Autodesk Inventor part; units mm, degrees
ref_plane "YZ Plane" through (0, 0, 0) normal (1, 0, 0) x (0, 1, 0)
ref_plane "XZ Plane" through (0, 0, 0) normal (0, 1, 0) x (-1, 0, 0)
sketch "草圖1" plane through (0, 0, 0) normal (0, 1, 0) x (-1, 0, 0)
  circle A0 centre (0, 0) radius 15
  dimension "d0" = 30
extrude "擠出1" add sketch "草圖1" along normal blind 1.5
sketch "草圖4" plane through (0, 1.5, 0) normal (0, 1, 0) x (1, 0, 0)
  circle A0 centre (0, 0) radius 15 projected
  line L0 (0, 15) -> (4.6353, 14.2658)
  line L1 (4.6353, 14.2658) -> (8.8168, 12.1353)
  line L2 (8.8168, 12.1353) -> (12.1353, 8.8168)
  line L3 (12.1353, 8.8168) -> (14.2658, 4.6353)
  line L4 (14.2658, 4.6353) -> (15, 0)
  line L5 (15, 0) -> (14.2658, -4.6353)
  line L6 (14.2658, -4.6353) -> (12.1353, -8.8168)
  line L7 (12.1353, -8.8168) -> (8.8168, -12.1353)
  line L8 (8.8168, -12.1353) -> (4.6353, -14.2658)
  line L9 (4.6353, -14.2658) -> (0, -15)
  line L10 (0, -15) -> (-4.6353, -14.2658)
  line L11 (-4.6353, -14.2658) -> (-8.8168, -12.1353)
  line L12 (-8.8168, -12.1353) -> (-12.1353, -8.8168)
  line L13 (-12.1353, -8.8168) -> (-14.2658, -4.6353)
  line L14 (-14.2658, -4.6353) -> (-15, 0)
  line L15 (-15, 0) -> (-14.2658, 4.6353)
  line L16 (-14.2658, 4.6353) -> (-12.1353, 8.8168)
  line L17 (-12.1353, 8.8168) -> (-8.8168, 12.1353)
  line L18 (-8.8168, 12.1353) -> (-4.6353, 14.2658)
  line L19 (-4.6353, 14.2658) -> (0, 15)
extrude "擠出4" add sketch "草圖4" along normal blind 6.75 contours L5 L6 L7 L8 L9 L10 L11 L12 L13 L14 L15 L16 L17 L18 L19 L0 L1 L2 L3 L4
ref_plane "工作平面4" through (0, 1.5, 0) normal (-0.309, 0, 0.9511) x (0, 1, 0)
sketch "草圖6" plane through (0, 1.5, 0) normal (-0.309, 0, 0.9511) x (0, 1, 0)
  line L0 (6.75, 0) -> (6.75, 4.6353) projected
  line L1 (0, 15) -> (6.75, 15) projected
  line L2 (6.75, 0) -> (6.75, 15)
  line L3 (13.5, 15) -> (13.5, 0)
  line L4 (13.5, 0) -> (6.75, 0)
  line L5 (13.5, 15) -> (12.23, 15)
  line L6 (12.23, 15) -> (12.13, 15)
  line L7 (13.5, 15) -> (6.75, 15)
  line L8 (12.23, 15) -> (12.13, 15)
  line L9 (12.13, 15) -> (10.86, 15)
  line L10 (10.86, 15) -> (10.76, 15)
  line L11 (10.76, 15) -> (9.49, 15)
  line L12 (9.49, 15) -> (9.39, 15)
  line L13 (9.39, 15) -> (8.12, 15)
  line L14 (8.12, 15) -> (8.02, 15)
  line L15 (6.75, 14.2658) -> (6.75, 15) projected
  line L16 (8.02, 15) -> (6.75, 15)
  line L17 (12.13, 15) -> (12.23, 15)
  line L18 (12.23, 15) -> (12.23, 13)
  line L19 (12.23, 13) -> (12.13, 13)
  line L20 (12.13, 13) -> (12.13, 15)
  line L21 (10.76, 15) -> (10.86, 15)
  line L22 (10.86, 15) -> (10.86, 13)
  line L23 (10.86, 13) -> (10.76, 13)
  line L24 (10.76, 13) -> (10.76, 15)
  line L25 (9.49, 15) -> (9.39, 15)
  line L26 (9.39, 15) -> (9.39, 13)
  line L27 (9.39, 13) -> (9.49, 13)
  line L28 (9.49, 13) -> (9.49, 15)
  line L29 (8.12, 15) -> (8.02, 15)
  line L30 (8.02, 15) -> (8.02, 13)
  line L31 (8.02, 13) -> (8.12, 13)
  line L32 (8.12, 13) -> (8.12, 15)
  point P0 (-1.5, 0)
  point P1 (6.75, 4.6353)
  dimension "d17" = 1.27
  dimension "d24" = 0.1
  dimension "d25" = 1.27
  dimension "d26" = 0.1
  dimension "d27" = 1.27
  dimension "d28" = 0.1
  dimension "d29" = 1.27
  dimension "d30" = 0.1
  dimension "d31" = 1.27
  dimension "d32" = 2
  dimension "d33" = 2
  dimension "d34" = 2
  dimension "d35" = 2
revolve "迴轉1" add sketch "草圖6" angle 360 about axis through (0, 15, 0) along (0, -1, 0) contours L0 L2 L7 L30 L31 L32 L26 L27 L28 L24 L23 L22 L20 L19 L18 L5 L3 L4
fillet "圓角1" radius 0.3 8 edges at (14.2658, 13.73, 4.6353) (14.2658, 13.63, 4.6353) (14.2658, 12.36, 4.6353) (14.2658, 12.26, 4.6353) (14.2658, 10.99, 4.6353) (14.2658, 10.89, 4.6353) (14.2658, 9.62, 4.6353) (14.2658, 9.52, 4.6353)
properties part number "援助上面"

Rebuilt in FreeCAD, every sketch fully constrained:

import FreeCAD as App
import Part
import Sketcher

V = App.Vector
Q = App.Units.Quantity


def edges_at(feature, points):
    """Names of the edges that pass closest to the given points."""
    edges = feature.Shape.Edges
    near = lambda p: min(range(len(edges)), key=lambda i: edges[i].distToShape(Part.Vertex(*p))[0])
    return sorted({f"Edge{near(p) + 1}" for p in points})


def add_polygon(sketch, points):
    """Adds a closed chain of lines whose ends are joined by coincident constraints."""
    first, n = sketch.GeometryCount, len(points)
    for a, b in zip(points, points[1:] + points[:1]):
        sketch.addGeometry(Part.LineSegment(App.Vector(*a, 0), App.Vector(*b, 0)), False)
    for i in range(n):
        sketch.addConstraint(Sketcher.Constraint("Coincident", first + i, 2, first + (i + 1) % n, 1))

doc = App.newDocument("Part")
body = doc.addObject("PartDesign::Body", "Body")

# Sketch on XZ plane
sketch1 = body.newObject("Sketcher::SketchObject", "Sketch")
sketch1.AttachmentSupport = (doc.getObject("XZ_Plane"), [""])
sketch1.MapMode = "FlatFace"
sketch1.addGeometry(Part.Circle(V(0, 0, 0), V(0, 0, 1), 15), False)
sketch1.addConstraint([
    Sketcher.Constraint("Coincident", 0, 3, -1, 1),
    Sketcher.Constraint("Diameter", 0, Q("30 mm")),
])
pad1 = body.newObject("PartDesign::Pad", "Pad")
pad1.Profile = sketch1
pad1.Length = 1.5
pad1.Reversed = True

# Sketch on XZ plane
sketch2 = body.newObject("Sketcher::SketchObject", "Sketch001")
sketch2.AttachmentSupport = (doc.getObject("XZ_Plane"), [""])
sketch2.MapMode = "FlatFace"
sketch2.AttachmentOffset = App.Placement(V(0, 0, -1.5), App.Rotation())
add_polygon(sketch2, [(14.3, 4.6), (15, 0), (14.3, -4.6), (12.1, -8.8), (8.8, -12.1), (4.6, -14.3), (0, -15), (-4.6, -14.3), (-8.8, -12.1), (-12.1, -8.8), (-14.3, -4.6), (-15, 0), (-14.3, 4.6), (-12.1, 8.8), (-8.8, 12.1), (-4.6, 14.3), (0, 15), (4.6, 14.3), (8.8, 12.1), (12.1, 8.8)])  # lines 0-19
sketch2.addConstraint([
    Sketcher.Constraint("Symmetric", 0, 2, 10, 2, -1, 1),
    Sketcher.Constraint("Symmetric", 1, 2, 11, 2, -1, 1),
    Sketcher.Constraint("Symmetric", 2, 2, 12, 2, -1, 1),
    Sketcher.Constraint("Symmetric", 3, 2, 13, 2, -1, 1),
    Sketcher.Constraint("Symmetric", 4, 2, 14, 2, -1, 1),
    Sketcher.Constraint("Symmetric", 5, 2, 15, 2, -1, 1),
    Sketcher.Constraint("Symmetric", 6, 2, 16, 2, -1, 1),
    Sketcher.Constraint("Symmetric", 7, 2, 17, 2, -1, 1),
    Sketcher.Constraint("Symmetric", 8, 2, 18, 2, -1, 1),
    Sketcher.Constraint("Symmetric", 9, 2, 19, 2, -1, 1),
    Sketcher.Constraint("Symmetric", 4, 2, 6, 2, -2),
    Sketcher.Constraint("Symmetric", 3, 2, 7, 2, -2),
    Sketcher.Constraint("Symmetric", 2, 2, 8, 2, -2),
    Sketcher.Constraint("Symmetric", 1, 2, 9, 2, -2),
    Sketcher.Constraint("PointOnObject", 0, 2, -1),
    Sketcher.Constraint("PointOnObject", 5, 2, -2),
    Sketcher.Constraint("Perpendicular", 0, 5),
    Sketcher.Constraint("Perpendicular", 2, 7),
    Sketcher.Constraint("Perpendicular", 3, 8),
    Sketcher.Constraint("Equal", 1, 2),
    Sketcher.Constraint("Equal", 2, 3),
    Sketcher.Constraint("Equal", 3, 4),
    Sketcher.Constraint("Equal", 4, 5),
    Sketcher.Constraint("Angle", 0, Q("-80.9995 deg")),
    Sketcher.Constraint("Angle", 2, Q("-116.9991 deg")),
    Sketcher.Constraint("DistanceX", -1, 1, 0, 2, Q("15 mm")),
])
pad2 = body.newObject("PartDesign::Pad", "Pad001")
pad2.Profile = sketch2
pad2.Length = 6.75
pad2.Reversed = True

# Sketch on an angled plane
sketch3 = body.newObject("Sketcher::SketchObject", "Sketch002")
sketch3.Placement = App.Placement(V(0, 1.5, 0), App.Rotation(V(0, 1, 0), V(-0.951056516, 0, -0.309016994), V(-0.309016994, 0, 0.951056516), "ZXY"))
add_polygon(sketch3, [(6.75, 15), (6.75, 0), (13.5, 0), (13.5, 15), (12.23, 15), (12.23, 13), (12.13, 13), (12.13, 15), (10.86, 15), (10.86, 13), (10.76, 13), (10.76, 15), (9.49, 15), (9.49, 13), (9.39, 13), (9.39, 15), (8.12, 15), (8.12, 13), (8.02, 13), (8.02, 15)])  # lines 0-19
sketch3.addConstraint([
    Sketcher.Constraint("Vertical", 0),
    Sketcher.Constraint("Horizontal", 1),
    Sketcher.Constraint("Vertical", 2),
    Sketcher.Constraint("Horizontal", 3),
    Sketcher.Constraint("Vertical", 4),
    Sketcher.Constraint("Horizontal", 5),
    Sketcher.Constraint("Vertical", 6),
    Sketcher.Constraint("Horizontal", 7),
    Sketcher.Constraint("Vertical", 8),
    Sketcher.Constraint("Horizontal", 9),
    Sketcher.Constraint("Vertical", 10),
    Sketcher.Constraint("Horizontal", 11),
    Sketcher.Constraint("Vertical", 12),
    Sketcher.Constraint("Horizontal", 13),
    Sketcher.Constraint("Vertical", 14),
    Sketcher.Constraint("Horizontal", 15),
    Sketcher.Constraint("Vertical", 16),
    Sketcher.Constraint("Horizontal", 17),
    Sketcher.Constraint("Vertical", 18),
    Sketcher.Constraint("Horizontal", 19),
    Sketcher.Constraint("PointOnObject", 0, 2, -1),
    Sketcher.Constraint("Horizontal", 3, 2, 6, 2),
    Sketcher.Constraint("Horizontal", 5, 2, 8, 2),
    Sketcher.Constraint("Horizontal", 7, 2, 10, 2),
    Sketcher.Constraint("Horizontal", 9, 2, 12, 2),
    Sketcher.Constraint("Horizontal", 11, 2, 14, 2),
    Sketcher.Constraint("Horizontal", 13, 2, 16, 2),
    Sketcher.Constraint("Horizontal", 15, 2, 18, 2),
    Sketcher.Constraint("Equal", 3, 7),
    Sketcher.Constraint("Equal", 5, 9),
    Sketcher.Constraint("Equal", 7, 11),
    Sketcher.Constraint("Equal", 9, 13),
    Sketcher.Constraint("Equal", 11, 15),
    Sketcher.Constraint("Equal", 13, 17),
    Sketcher.Constraint("Equal", 15, 19),
    Sketcher.Constraint("DistanceY", 4, 2, 4, 1, Q("2 mm")),
    Sketcher.Constraint("DistanceX", 5, 2, 5, 1, Q("0.1 mm")),
    Sketcher.Constraint("DistanceX", 3, 2, 3, 1, Q("1.27 mm")),
    Sketcher.Constraint("DistanceY", 0, 2, 0, 1, Q("15 mm")),
    Sketcher.Constraint("DistanceX", -1, 1, 1, 2, Q("13.5 mm")),
])
revolution = body.newObject("PartDesign::Revolution", "Revolution")
revolution.Profile = sketch3
revolution.ReferenceAxis = (sketch3, ["H_Axis"])
revolution.Angle = 360
doc.recompute()

fillet = body.newObject("PartDesign::Fillet", "Fillet")
fillet.Base = (revolution, edges_at(revolution, [
    (14.266, 13.73, 4.635),
    (14.266, 13.63, 4.635),
    (14.266, 12.36, 4.635),
    (14.266, 12.26, 4.635),
    (14.266, 10.99, 4.635),
    (14.266, 10.89, 4.635),
    (14.266, 9.62, 4.635),
    (14.266, 9.52, 4.635),
]))
fillet.Radius = 0.3

doc.recompute()
